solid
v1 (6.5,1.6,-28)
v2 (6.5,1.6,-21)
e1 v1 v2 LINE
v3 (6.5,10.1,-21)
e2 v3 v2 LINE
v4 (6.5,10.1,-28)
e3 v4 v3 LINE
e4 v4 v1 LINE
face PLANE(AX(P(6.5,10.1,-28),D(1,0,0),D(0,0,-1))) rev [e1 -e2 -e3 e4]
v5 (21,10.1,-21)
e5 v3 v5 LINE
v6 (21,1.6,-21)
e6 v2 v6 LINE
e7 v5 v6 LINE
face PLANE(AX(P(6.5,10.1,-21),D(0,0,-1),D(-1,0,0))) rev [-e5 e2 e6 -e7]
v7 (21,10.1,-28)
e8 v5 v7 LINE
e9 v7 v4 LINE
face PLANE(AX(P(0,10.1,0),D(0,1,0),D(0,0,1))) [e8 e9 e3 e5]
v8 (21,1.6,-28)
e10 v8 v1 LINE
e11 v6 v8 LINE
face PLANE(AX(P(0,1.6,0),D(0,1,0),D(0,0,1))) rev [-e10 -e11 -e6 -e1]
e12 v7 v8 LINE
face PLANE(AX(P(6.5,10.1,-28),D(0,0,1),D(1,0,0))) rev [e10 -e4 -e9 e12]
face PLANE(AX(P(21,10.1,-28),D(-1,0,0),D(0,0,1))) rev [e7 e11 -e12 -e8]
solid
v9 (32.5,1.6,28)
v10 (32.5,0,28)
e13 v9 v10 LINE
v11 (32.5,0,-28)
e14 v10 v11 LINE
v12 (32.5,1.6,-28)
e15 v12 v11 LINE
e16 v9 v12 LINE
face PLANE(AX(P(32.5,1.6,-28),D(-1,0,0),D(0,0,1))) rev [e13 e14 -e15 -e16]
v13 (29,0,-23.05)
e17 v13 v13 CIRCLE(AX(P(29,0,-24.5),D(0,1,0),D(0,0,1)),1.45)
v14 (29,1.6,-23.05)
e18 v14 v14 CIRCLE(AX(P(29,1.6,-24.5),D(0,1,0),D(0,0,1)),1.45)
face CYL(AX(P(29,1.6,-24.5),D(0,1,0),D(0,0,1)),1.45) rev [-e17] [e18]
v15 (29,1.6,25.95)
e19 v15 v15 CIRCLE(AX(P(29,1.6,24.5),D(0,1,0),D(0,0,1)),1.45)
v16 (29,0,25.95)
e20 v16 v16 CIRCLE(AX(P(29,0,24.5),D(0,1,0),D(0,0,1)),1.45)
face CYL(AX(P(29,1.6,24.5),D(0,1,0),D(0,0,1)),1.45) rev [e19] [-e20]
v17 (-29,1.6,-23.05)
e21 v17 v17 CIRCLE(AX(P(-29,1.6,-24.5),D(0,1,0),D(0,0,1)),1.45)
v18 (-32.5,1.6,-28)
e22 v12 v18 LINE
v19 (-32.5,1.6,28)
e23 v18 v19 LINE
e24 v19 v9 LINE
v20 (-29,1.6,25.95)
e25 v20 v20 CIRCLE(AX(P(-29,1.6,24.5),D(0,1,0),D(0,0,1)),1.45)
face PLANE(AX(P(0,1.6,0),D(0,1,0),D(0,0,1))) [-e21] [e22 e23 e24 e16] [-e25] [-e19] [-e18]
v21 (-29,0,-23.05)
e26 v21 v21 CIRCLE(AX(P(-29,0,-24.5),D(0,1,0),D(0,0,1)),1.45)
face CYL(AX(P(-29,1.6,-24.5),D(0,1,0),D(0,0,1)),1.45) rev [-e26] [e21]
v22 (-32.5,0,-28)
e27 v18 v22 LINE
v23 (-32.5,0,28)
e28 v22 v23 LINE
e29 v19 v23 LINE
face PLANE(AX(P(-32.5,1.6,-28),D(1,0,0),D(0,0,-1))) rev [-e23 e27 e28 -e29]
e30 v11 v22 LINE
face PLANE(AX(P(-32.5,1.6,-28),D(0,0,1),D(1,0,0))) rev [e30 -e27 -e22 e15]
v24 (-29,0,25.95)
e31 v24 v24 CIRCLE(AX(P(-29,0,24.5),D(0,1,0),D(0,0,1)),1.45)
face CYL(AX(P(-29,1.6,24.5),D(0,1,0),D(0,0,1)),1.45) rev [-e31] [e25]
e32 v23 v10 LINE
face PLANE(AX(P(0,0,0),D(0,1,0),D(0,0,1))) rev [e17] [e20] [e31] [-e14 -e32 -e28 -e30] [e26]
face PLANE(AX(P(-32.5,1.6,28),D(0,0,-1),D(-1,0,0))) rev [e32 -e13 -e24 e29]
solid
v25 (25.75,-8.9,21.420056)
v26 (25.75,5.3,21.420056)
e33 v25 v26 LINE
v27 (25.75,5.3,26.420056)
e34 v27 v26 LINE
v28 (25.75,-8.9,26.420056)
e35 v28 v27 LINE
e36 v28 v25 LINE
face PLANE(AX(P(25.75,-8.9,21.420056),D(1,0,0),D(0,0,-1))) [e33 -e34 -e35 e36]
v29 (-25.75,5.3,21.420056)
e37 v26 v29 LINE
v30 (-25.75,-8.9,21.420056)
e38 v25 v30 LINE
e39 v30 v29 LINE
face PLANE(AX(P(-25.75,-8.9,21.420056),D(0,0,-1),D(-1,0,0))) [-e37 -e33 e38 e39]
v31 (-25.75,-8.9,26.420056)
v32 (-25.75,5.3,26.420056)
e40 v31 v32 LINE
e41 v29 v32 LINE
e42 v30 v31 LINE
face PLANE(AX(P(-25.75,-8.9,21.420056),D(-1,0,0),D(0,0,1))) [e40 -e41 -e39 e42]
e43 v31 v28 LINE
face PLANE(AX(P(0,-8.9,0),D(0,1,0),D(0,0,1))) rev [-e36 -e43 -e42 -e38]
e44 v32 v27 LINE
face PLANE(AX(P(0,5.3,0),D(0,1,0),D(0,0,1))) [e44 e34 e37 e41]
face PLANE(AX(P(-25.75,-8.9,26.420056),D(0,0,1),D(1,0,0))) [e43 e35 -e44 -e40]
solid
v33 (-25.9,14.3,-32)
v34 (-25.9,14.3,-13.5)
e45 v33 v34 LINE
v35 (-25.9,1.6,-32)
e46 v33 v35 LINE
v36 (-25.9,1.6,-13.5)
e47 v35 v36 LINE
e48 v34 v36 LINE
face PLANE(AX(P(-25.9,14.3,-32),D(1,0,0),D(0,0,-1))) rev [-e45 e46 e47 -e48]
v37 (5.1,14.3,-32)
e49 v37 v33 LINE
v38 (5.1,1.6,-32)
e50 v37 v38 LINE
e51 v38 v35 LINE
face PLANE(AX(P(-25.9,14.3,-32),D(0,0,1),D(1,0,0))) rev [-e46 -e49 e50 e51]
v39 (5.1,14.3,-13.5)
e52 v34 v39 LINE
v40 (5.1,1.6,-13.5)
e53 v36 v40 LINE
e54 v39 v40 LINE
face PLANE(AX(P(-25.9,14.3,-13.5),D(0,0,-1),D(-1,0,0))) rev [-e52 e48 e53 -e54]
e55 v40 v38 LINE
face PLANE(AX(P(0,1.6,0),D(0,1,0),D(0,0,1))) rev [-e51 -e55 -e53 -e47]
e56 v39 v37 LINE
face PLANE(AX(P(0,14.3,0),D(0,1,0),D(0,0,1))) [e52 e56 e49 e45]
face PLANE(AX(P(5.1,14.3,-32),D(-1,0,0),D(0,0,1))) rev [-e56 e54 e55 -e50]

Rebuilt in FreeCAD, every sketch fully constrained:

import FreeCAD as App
import Part
import Sketcher
from FreeCAD import Vector

doc = App.newDocument("Part")
body = doc.addObject("PartDesign::Body", "Body")

# Sketch on XZ plane
sketch1 = body.newObject("Sketcher::SketchObject", "Sketch")
sketch1.AttachmentSupport = (doc.getObject("XZ_Plane"), [""])
sketch1.MapMode = "FlatFace"
sketch1.addGeometry([
    Part.LineSegment(Vector(-32.5, -28, 0), Vector(-32.5, 28, 0)),
    Part.LineSegment(Vector(-32.5, 28, 0), Vector(32.5, 28, 0)),
    Part.LineSegment(Vector(32.5, 28, 0), Vector(32.5, -28, 0)),
    Part.LineSegment(Vector(32.5, -28, 0), Vector(-32.5, -28, 0)),
], False)
sketch1.addConstraint([
    Sketcher.Constraint("Coincident", 0, 2, 1, 1),
    Sketcher.Constraint("Coincident", 1, 2, 2, 1),
    Sketcher.Constraint("Coincident", 2, 2, 3, 1),
    Sketcher.Constraint("Coincident", 3, 2, 0, 1),
    Sketcher.Constraint("Vertical", 0),
    Sketcher.Constraint("Horizontal", 1),
    Sketcher.Constraint("Vertical", 2),
    Sketcher.Constraint("Horizontal", 3),
    Sketcher.Constraint("Symmetric", 0, 2, 2, 2, -1, 1),
    Sketcher.Constraint("DistanceX", 1, 1, 1, 2, 65.0),
    Sketcher.Constraint("DistanceY", 0, 1, 0, 2, 56.0),
])
pad1 = body.newObject("PartDesign::Pad", "Pad")
pad1.Profile = sketch1
pad1.Length = 1.6
pad1.Reversed = True

# Sketch on XZ plane
sketch2 = body.newObject("Sketcher::SketchObject", "Sketch001")
sketch2.AttachmentSupport = (doc.getObject("XZ_Plane"), [""])
sketch2.MapMode = "FlatFace"
sketch2.AttachmentOffset = App.Placement(Vector(0, 0, -1.6), App.Rotation())
sketch2.addGeometry([
    Part.Circle(Vector(-29, -24.5, 0), Vector(0, 0, 1), 1.45),
    Part.Circle(Vector(29, -24.5, 0), Vector(0, 0, 1), 1.45),
    Part.Circle(Vector(29, 24.5, 0), Vector(0, 0, 1), 1.45),
    Part.Circle(Vector(-29, 24.5, 0), Vector(0, 0, 1), 1.45),
], False)
sketch2.addConstraint([
    Sketcher.Constraint("Equal", 0, 1),
    Sketcher.Constraint("Equal", 1, 2),
    Sketcher.Constraint("Equal", 2, 3),
    Sketcher.Constraint("Symmetric", 0, 3, 2, 3, -1, 1),
    Sketcher.Constraint("Symmetric", 1, 3, 3, 3, -1, 1),
    Sketcher.Constraint("Symmetric", 0, 3, 1, 3, -2),
    Sketcher.Constraint("Diameter", 0, 2.9),
    Sketcher.Constraint("DistanceX", 0, 3, -1, 1, 29.0),
    Sketcher.Constraint("DistanceY", 1, 3, 2, 3, 49.0),
])
doc.recompute()
hole = body.newObject("PartDesign::Hole", "Hole")
hole.Profile = sketch2
hole.ThreadType = "None"
hole.Diameter = 2.9
hole.DepthType = "ThroughAll"
hole.Reversed = True
body2 = doc.addObject("PartDesign::Body", "Body001")

# Sketch on XZ plane
sketch3 = body2.newObject("Sketcher::SketchObject", "Sketch002")
sketch3.AttachmentSupport = (doc.getObject("XZ_Plane001"), [""])
sketch3.MapMode = "FlatFace"
sketch3.AttachmentOffset = App.Placement(Vector(0, 0, -1.6), App.Rotation())
sketch3.addGeometry([
    Part.LineSegment(Vector(-25.9, -32, 0), Vector(-25.9, -13.5, 0)),
    Part.LineSegment(Vector(-25.9, -13.5, 0), Vector(5.1, -13.5, 0)),
    Part.LineSegment(Vector(5.1, -13.5, 0), Vector(5.1, -32, 0)),
    Part.LineSegment(Vector(5.1, -32, 0), Vector(-25.9, -32, 0)),
], False)
sketch3.addConstraint([
    Sketcher.Constraint("Coincident", 0, 2, 1, 1),
    Sketcher.Constraint("Coincident", 1, 2, 2, 1),
    Sketcher.Constraint("Coincident", 2, 2, 3, 1),
    Sketcher.Constraint("Coincident", 3, 2, 0, 1),
    Sketcher.Constraint("Vertical", 0),
    Sketcher.Constraint("Horizontal", 1),
    Sketcher.Constraint("Vertical", 2),
    Sketcher.Constraint("Horizontal", 3),
    Sketcher.Constraint("DistanceX", 1, 1, 1, 2, 31.0),
    Sketcher.Constraint("DistanceY", 0, 1, 0, 2, 18.5),
    Sketcher.Constraint("DistanceY", 2, 2, -1, 1, 32.0),
    Sketcher.Constraint("DistanceX", 0, 2, -1, 1, 25.9),
])
pad2 = body2.newObject("PartDesign::Pad", "Pad001")
pad2.Profile = sketch3
pad2.Length = 12.7
pad2.Reversed = True
body3 = doc.addObject("PartDesign::Body", "Body002")

# Sketch on XZ plane
sketch4 = body3.newObject("Sketcher::SketchObject", "Sketch003")
sketch4.AttachmentSupport = (doc.getObject("XZ_Plane002"), [""])
sketch4.MapMode = "FlatFace"
sketch4.AttachmentOffset = App.Placement(Vector(0, 0, -1.6), App.Rotation())
sketch4.addGeometry([
    Part.LineSegment(Vector(6.5, -28, 0), Vector(6.5, -21, 0)),
    Part.LineSegment(Vector(6.5, -21, 0), Vector(21, -21, 0)),
    Part.LineSegment(Vector(21, -21, 0), Vector(21, -28, 0)),
    Part.LineSegment(Vector(21, -28, 0), Vector(6.5, -28, 0)),
], False)
sketch4.addConstraint([
    Sketcher.Constraint("Coincident", 0, 2, 1, 1),
    Sketcher.Constraint("Coincident", 1, 2, 2, 1),
    Sketcher.Constraint("Coincident", 2, 2, 3, 1),
    Sketcher.Constraint("Coincident", 3, 2, 0, 1),
    Sketcher.Constraint("Vertical", 0),
    Sketcher.Constraint("Horizontal", 1),
    Sketcher.Constraint("Vertical", 2),
    Sketcher.Constraint("Horizontal", 3),
    Sketcher.Constraint("DistanceY", 0, 1, 0, 2, 7.0),
    Sketcher.Constraint("DistanceX", 1, 1, 1, 2, 14.5),
    Sketcher.Constraint("DistanceY", 0, 2, -1, 1, 21.0),
    Sketcher.Constraint("DistanceX", -1, 1, 1, 2, 21.0),
])
pad3 = body3.newObject("PartDesign::Pad", "Pad002")
pad3.Profile = sketch4
pad3.Length = 8.5
pad3.Reversed = True
body4 = doc.addObject("PartDesign::Body", "Body003")

# Sketch on XZ plane
sketch5 = body4.newObject("Sketcher::SketchObject", "Sketch004")
sketch5.AttachmentSupport = (doc.getObject("XZ_Plane003"), [""])
sketch5.MapMode = "FlatFace"
sketch5.AttachmentOffset = App.Placement(Vector(0, 0, -1.6), App.Rotation())
sketch5.addGeometry([
    Part.LineSegment(Vector(-25.75, 21.420056, 0), Vector(-25.75, 26.420056, 0)),
    Part.LineSegment(Vector(-25.75, 26.420056, 0), Vector(25.75, 26.420056, 0)),
    Part.LineSegment(Vector(25.75, 26.420056, 0), Vector(25.75, 21.420056, 0)),
    Part.LineSegment(Vector(25.75, 21.420056, 0), Vector(-25.75, 21.420056, 0)),
], False)
sketch5.addConstraint([
    Sketcher.Constraint("Coincident", 0, 2, 1, 1),
    Sketcher.Constraint("Coincident", 1, 2, 2, 1),
    Sketcher.Constraint("Coincident", 2, 2, 3, 1),
    Sketcher.Constraint("Coincident", 3, 2, 0, 1),
    Sketcher.Constraint("Vertical", 0),
    Sketcher.Constraint("Horizontal", 1),
    Sketcher.Constraint("Vertical", 2),
    Sketcher.Constraint("Horizontal", 3),
    Sketcher.Constraint("DistanceY", 0, 1, 0, 2, 5.0),
    Sketcher.Constraint("DistanceX", 1, 1, 1, 2, 51.5),
    Sketcher.Constraint("DistanceX", 0, 2, -1, 1, 25.75),
    Sketcher.Constraint("DistanceY", -1, 1, 0, 2, 26.420056),
])
pad4 = body4.newObject("PartDesign::Pad", "Pad003")
pad4.Profile = sketch5
pad4.Type = "TwoLengths"
pad4.Length = 3.7
pad4.Length2 = 10.5
pad4.Reversed = True

doc.recompute()
